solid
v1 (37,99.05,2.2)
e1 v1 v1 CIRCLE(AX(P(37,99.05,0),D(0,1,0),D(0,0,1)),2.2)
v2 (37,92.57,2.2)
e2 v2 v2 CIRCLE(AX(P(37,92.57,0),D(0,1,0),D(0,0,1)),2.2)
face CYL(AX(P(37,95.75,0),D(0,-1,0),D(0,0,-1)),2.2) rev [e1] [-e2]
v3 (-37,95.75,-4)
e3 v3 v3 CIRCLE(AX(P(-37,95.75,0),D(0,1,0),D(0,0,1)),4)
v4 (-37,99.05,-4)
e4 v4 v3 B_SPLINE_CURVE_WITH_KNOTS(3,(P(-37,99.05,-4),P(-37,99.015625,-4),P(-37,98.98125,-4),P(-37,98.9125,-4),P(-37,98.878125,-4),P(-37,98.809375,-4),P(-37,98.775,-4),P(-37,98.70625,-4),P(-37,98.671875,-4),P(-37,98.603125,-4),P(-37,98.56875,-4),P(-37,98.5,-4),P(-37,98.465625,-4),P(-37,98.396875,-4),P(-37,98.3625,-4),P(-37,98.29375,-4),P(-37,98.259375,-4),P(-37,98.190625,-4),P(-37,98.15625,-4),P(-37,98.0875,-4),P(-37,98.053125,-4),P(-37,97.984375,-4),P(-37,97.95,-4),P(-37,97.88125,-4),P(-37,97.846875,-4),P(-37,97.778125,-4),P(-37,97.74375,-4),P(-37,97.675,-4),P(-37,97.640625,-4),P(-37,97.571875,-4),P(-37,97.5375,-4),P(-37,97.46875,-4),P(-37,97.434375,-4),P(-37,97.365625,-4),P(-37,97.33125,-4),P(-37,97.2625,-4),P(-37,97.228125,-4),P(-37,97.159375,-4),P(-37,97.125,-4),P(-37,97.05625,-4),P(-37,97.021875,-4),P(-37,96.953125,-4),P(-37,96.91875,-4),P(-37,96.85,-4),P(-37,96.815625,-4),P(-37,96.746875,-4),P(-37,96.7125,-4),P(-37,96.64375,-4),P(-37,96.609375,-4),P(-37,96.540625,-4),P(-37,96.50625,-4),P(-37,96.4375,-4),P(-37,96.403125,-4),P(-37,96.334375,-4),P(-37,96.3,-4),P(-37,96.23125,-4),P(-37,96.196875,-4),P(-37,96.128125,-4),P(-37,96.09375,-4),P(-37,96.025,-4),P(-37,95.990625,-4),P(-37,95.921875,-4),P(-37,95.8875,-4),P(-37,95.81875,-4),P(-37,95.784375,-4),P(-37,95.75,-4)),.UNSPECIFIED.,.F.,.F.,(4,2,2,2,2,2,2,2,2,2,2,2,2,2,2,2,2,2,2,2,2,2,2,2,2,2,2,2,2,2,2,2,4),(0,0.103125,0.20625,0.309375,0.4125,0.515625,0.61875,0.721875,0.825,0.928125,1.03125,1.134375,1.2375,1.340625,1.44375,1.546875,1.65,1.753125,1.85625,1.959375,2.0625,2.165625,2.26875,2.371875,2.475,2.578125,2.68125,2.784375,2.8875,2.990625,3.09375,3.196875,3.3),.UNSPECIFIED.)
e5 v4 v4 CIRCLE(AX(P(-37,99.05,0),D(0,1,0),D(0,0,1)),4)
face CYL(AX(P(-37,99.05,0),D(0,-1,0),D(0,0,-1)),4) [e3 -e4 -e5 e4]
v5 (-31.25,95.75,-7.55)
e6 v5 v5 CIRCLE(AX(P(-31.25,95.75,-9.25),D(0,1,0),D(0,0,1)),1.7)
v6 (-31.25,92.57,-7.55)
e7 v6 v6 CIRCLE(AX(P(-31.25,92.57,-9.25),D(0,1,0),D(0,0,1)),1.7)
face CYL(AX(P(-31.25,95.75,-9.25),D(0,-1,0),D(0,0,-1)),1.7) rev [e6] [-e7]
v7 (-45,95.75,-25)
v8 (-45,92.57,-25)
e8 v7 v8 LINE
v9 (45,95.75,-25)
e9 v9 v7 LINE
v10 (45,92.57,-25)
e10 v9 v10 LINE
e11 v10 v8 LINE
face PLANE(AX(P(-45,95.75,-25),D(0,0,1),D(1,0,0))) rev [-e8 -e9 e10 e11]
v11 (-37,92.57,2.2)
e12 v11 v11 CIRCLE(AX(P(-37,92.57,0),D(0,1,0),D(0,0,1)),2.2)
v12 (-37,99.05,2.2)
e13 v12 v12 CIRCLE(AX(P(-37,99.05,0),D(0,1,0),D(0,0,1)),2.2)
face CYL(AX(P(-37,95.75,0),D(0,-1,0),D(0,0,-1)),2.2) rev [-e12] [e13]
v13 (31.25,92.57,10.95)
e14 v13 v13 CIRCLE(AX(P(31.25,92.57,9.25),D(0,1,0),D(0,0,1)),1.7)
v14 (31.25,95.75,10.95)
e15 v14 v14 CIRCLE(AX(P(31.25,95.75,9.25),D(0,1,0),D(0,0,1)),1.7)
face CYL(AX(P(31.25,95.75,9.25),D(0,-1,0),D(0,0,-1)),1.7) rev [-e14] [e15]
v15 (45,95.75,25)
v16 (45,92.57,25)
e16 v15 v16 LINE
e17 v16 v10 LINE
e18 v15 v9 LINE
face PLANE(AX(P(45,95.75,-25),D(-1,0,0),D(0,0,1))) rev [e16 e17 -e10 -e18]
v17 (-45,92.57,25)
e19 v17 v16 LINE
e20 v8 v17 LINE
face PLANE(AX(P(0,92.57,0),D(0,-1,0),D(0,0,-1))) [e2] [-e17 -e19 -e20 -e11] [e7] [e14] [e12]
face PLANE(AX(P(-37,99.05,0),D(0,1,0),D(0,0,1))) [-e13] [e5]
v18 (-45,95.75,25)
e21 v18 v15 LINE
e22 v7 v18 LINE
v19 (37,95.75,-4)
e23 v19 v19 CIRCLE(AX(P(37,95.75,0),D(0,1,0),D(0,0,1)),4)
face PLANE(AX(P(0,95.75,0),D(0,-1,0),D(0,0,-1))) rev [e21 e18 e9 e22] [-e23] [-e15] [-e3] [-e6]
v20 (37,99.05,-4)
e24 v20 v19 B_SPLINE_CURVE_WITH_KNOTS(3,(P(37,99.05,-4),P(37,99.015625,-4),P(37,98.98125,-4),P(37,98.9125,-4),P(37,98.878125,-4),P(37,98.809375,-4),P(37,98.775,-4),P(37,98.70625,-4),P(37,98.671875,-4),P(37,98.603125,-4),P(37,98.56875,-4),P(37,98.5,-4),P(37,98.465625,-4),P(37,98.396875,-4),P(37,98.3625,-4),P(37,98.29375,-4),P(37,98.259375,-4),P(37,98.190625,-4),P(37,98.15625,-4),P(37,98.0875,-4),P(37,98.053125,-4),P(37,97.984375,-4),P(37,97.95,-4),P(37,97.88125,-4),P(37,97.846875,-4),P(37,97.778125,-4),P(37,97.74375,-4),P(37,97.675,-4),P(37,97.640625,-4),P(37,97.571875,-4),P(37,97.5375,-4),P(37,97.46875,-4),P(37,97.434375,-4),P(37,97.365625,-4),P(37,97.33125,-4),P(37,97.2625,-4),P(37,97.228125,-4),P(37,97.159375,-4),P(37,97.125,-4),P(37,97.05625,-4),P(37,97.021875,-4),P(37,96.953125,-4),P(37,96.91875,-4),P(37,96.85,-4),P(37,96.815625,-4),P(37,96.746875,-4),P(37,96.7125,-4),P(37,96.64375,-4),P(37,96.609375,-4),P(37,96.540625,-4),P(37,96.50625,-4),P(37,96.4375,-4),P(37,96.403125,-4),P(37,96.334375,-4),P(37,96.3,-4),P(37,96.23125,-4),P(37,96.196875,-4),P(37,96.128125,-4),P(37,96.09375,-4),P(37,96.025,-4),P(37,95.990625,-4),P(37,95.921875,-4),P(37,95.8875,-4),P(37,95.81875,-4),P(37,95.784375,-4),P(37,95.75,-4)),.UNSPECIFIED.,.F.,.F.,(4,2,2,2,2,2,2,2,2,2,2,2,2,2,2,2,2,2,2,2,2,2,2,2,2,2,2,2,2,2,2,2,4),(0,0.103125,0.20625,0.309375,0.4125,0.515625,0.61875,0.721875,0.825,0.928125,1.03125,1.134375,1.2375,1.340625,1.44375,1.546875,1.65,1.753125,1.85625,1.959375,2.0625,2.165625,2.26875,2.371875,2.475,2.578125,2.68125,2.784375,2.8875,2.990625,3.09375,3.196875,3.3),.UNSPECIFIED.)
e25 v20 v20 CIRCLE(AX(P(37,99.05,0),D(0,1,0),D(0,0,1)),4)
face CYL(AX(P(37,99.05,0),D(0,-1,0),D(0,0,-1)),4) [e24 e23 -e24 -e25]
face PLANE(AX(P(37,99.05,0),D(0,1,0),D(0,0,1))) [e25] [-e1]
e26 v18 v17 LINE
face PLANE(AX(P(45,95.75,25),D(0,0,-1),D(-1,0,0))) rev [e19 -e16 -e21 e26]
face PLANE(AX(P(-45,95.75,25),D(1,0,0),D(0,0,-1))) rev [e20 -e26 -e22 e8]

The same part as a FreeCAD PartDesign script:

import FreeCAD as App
import Part
import Sketcher
from FreeCAD import Vector
Q = App.Units.Quantity


def add_polygon(sketch, points):
    """Adds a closed chain of lines whose ends are joined by coincident constraints."""
    first, n = sketch.GeometryCount, len(points)
    for a, b in zip(points, points[1:] + points[:1]):
        sketch.addGeometry(Part.LineSegment(App.Vector(*a, 0), App.Vector(*b, 0)), False)
    for i in range(n):
        sketch.addConstraint(Sketcher.Constraint("Coincident", first + i, 2, first + (i + 1) % n, 1))

doc = App.newDocument("Part")
body = doc.addObject("PartDesign::Body", "Body")

# Sketch on XZ plane
sketch1 = body.newObject("Sketcher::SketchObject", "Sketch")
sketch1.AttachmentSupport = (doc.getObject("XZ_Plane"), [""])
sketch1.MapMode = "FlatFace"
sketch1.AttachmentOffset = App.Placement(Vector(0, 0, -92.57), App.Rotation())
add_polygon(sketch1, [(-45, -25), (-45, 25), (45, 25), (45, -25)])  # lines 0-3
sketch1.addGeometry(Part.Circle(Vector(31.25, 9.25, 0), Vector(0, 0, 1), 1.7), False)  # 4
sketch1.addGeometry(Part.Circle(Vector(-37, 0, 0), Vector(0, 0, 1), 2.2), False)  # 5
sketch1.addGeometry(Part.Circle(Vector(-31.25, -9.25, 0), Vector(0, 0, 1), 1.7), False)  # 6
sketch1.addGeometry(Part.Circle(Vector(37, 0, 0), Vector(0, 0, 1), 2.2), False)  # 7
sketch1.addConstraint(Sketcher.Constraint("Vertical", 0))
sketch1.addConstraint(Sketcher.Constraint("Horizontal", 1))
sketch1.addConstraint(Sketcher.Constraint("Vertical", 2))
sketch1.addConstraint(Sketcher.Constraint("Horizontal", 3))
sketch1.addConstraint(Sketcher.Constraint("Equal", 4, 6))
sketch1.addConstraint(Sketcher.Constraint("Equal", 5, 7))
sketch1.addConstraint(Sketcher.Constraint("Symmetric", 4, 3, 6, 3, -1, 1))
sketch1.addConstraint(Sketcher.Constraint("Symmetric", 5, 3, 7, 3, -1, 1))
sketch1.addConstraint(Sketcher.Constraint("Symmetric", 0, 2, 2, 2, -1, 1))
sketch1.addConstraint(Sketcher.Constraint("PointOnObject", 5, 3, -1))
sketch1.addConstraint(Sketcher.Constraint("Diameter", 4, Q("3.4 mm")))
sketch1.addConstraint(Sketcher.Constraint("Diameter", 5, Q("4.4 mm")))
sketch1.addConstraint(Sketcher.Constraint("DistanceX", 1, 1, 1, 2, Q("90 mm")))
sketch1.addConstraint(Sketcher.Constraint("DistanceY", 0, 1, 0, 2, Q("50 mm")))
sketch1.addConstraint(Sketcher.Constraint("DistanceX", 5, 3, -1, 1, Q("37 mm")))
sketch1.addConstraint(Sketcher.Constraint("DistanceX", 6, 3, 4, 3, Q("62.5 mm")))
sketch1.addConstraint(Sketcher.Constraint("DistanceY", 6, 3, 4, 3, Q("18.5 mm")))
pad1 = body.newObject("PartDesign::Pad", "Pad")
pad1.Profile = sketch1
pad1.Length = 3.18
pad1.Reversed = True

# Sketch on XZ plane
sketch2 = body.newObject("Sketcher::SketchObject", "Sketch001")
sketch2.AttachmentSupport = (doc.getObject("XZ_Plane"), [""])
sketch2.MapMode = "FlatFace"
sketch2.AttachmentOffset = App.Placement(Vector(0, 0, -95.75), App.Rotation())
sketch2.addGeometry(Part.Circle(Vector(-37, 0, 0), Vector(0, 0, 1), 4), False)
sketch2.addGeometry(Part.Circle(Vector(-37, 0, 0), Vector(0, 0, 1), 2.2), False)
sketch2.addGeometry(Part.Circle(Vector(37, 0, 0), Vector(0, 0, 1), 4), False)
sketch2.addGeometry(Part.Circle(Vector(37, 0, 0), Vector(0, 0, 1), 2.2), False)
sketch2.addConstraint(Sketcher.Constraint("Coincident", 1, 3, 0, 3))
sketch2.addConstraint(Sketcher.Constraint("Coincident", 3, 3, 2, 3))
sketch2.addConstraint(Sketcher.Constraint("Equal", 0, 2))
sketch2.addConstraint(Sketcher.Constraint("Equal", 1, 3))
sketch2.addConstraint(Sketcher.Constraint("Symmetric", 0, 3, 2, 3, -1, 1))
sketch2.addConstraint(Sketcher.Constraint("PointOnObject", 0, 3, -1))
sketch2.addConstraint(Sketcher.Constraint("Diameter", 0, Q("8 mm")))
sketch2.addConstraint(Sketcher.Constraint("Diameter", 1, Q("4.4 mm")))
sketch2.addConstraint(Sketcher.Constraint("DistanceX", 0, 3, -1, 1, Q("37 mm")))
pad2 = body.newObject("PartDesign::Pad", "Pad001")
pad2.Profile = sketch2
pad2.Length = 3.3
pad2.Reversed = True

doc.recompute()
